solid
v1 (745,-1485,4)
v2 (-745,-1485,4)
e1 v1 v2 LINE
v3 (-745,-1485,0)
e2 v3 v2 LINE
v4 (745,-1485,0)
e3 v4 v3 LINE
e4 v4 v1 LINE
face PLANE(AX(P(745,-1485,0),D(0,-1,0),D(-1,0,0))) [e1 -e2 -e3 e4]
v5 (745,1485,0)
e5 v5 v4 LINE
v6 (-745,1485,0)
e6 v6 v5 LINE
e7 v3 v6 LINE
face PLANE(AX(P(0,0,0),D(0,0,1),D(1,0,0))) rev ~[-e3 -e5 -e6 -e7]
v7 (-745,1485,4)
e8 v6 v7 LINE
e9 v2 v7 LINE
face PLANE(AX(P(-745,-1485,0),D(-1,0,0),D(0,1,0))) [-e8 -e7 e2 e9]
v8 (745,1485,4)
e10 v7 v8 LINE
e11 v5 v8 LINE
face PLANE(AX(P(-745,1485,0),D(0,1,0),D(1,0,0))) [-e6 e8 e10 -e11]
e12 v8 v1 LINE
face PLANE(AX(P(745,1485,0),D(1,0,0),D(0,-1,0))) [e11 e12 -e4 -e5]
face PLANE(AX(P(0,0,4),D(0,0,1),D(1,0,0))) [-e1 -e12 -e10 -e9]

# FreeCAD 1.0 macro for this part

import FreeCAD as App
import Part
import Sketcher

V = App.Vector


def add_polygon(sketch, points):
    """Adds a closed chain of lines whose ends are joined by coincident constraints."""
    first, n = sketch.GeometryCount, len(points)
    for a, b in zip(points, points[1:] + points[:1]):
        sketch.addGeometry(Part.LineSegment(App.Vector(*a, 0), App.Vector(*b, 0)), False)
    for i in range(n):
        sketch.addConstraint(Sketcher.Constraint("Coincident", first + i, 2, first + (i + 1) % n, 1))

doc = App.newDocument("Part")
body = doc.addObject("PartDesign::Body", "Body")

# Sketch on XY plane
sketch1 = doc.addObject("Sketcher::SketchObject", "Sketch")
body.addObject(sketch1)
sketch1.AttachmentSupport = (doc.XY_Plane, [""])
sketch1.MapMode = "FlatFace"
add_polygon(sketch1, [(-745, -1485), (745, -1485), (745, 1485), (-745, 1485)])  # lines 0-3
sketch1.addConstraint(Sketcher.Constraint("Horizontal", 0))
sketch1.addConstraint(Sketcher.Constraint("Vertical", 1))
sketch1.addConstraint(Sketcher.Constraint("Horizontal", 2))
sketch1.addConstraint(Sketcher.Constraint("Vertical", 3))
sketch1.addConstraint(Sketcher.Constraint("Symmetric", 0, 2, 2, 2, -1, 1))
sketch1.addConstraint(Sketcher.Constraint("DistanceX", 0, 1, 0, 2, 1490.0))
sketch1.addConstraint(Sketcher.Constraint("DistanceY", 1, 1, 1, 2, 2970.0))
pad1 = doc.addObject("PartDesign::Pad", "Pad")
body.addObject(pad1)
pad1.Profile = sketch1
pad1.Length = 4

doc.recompute()
